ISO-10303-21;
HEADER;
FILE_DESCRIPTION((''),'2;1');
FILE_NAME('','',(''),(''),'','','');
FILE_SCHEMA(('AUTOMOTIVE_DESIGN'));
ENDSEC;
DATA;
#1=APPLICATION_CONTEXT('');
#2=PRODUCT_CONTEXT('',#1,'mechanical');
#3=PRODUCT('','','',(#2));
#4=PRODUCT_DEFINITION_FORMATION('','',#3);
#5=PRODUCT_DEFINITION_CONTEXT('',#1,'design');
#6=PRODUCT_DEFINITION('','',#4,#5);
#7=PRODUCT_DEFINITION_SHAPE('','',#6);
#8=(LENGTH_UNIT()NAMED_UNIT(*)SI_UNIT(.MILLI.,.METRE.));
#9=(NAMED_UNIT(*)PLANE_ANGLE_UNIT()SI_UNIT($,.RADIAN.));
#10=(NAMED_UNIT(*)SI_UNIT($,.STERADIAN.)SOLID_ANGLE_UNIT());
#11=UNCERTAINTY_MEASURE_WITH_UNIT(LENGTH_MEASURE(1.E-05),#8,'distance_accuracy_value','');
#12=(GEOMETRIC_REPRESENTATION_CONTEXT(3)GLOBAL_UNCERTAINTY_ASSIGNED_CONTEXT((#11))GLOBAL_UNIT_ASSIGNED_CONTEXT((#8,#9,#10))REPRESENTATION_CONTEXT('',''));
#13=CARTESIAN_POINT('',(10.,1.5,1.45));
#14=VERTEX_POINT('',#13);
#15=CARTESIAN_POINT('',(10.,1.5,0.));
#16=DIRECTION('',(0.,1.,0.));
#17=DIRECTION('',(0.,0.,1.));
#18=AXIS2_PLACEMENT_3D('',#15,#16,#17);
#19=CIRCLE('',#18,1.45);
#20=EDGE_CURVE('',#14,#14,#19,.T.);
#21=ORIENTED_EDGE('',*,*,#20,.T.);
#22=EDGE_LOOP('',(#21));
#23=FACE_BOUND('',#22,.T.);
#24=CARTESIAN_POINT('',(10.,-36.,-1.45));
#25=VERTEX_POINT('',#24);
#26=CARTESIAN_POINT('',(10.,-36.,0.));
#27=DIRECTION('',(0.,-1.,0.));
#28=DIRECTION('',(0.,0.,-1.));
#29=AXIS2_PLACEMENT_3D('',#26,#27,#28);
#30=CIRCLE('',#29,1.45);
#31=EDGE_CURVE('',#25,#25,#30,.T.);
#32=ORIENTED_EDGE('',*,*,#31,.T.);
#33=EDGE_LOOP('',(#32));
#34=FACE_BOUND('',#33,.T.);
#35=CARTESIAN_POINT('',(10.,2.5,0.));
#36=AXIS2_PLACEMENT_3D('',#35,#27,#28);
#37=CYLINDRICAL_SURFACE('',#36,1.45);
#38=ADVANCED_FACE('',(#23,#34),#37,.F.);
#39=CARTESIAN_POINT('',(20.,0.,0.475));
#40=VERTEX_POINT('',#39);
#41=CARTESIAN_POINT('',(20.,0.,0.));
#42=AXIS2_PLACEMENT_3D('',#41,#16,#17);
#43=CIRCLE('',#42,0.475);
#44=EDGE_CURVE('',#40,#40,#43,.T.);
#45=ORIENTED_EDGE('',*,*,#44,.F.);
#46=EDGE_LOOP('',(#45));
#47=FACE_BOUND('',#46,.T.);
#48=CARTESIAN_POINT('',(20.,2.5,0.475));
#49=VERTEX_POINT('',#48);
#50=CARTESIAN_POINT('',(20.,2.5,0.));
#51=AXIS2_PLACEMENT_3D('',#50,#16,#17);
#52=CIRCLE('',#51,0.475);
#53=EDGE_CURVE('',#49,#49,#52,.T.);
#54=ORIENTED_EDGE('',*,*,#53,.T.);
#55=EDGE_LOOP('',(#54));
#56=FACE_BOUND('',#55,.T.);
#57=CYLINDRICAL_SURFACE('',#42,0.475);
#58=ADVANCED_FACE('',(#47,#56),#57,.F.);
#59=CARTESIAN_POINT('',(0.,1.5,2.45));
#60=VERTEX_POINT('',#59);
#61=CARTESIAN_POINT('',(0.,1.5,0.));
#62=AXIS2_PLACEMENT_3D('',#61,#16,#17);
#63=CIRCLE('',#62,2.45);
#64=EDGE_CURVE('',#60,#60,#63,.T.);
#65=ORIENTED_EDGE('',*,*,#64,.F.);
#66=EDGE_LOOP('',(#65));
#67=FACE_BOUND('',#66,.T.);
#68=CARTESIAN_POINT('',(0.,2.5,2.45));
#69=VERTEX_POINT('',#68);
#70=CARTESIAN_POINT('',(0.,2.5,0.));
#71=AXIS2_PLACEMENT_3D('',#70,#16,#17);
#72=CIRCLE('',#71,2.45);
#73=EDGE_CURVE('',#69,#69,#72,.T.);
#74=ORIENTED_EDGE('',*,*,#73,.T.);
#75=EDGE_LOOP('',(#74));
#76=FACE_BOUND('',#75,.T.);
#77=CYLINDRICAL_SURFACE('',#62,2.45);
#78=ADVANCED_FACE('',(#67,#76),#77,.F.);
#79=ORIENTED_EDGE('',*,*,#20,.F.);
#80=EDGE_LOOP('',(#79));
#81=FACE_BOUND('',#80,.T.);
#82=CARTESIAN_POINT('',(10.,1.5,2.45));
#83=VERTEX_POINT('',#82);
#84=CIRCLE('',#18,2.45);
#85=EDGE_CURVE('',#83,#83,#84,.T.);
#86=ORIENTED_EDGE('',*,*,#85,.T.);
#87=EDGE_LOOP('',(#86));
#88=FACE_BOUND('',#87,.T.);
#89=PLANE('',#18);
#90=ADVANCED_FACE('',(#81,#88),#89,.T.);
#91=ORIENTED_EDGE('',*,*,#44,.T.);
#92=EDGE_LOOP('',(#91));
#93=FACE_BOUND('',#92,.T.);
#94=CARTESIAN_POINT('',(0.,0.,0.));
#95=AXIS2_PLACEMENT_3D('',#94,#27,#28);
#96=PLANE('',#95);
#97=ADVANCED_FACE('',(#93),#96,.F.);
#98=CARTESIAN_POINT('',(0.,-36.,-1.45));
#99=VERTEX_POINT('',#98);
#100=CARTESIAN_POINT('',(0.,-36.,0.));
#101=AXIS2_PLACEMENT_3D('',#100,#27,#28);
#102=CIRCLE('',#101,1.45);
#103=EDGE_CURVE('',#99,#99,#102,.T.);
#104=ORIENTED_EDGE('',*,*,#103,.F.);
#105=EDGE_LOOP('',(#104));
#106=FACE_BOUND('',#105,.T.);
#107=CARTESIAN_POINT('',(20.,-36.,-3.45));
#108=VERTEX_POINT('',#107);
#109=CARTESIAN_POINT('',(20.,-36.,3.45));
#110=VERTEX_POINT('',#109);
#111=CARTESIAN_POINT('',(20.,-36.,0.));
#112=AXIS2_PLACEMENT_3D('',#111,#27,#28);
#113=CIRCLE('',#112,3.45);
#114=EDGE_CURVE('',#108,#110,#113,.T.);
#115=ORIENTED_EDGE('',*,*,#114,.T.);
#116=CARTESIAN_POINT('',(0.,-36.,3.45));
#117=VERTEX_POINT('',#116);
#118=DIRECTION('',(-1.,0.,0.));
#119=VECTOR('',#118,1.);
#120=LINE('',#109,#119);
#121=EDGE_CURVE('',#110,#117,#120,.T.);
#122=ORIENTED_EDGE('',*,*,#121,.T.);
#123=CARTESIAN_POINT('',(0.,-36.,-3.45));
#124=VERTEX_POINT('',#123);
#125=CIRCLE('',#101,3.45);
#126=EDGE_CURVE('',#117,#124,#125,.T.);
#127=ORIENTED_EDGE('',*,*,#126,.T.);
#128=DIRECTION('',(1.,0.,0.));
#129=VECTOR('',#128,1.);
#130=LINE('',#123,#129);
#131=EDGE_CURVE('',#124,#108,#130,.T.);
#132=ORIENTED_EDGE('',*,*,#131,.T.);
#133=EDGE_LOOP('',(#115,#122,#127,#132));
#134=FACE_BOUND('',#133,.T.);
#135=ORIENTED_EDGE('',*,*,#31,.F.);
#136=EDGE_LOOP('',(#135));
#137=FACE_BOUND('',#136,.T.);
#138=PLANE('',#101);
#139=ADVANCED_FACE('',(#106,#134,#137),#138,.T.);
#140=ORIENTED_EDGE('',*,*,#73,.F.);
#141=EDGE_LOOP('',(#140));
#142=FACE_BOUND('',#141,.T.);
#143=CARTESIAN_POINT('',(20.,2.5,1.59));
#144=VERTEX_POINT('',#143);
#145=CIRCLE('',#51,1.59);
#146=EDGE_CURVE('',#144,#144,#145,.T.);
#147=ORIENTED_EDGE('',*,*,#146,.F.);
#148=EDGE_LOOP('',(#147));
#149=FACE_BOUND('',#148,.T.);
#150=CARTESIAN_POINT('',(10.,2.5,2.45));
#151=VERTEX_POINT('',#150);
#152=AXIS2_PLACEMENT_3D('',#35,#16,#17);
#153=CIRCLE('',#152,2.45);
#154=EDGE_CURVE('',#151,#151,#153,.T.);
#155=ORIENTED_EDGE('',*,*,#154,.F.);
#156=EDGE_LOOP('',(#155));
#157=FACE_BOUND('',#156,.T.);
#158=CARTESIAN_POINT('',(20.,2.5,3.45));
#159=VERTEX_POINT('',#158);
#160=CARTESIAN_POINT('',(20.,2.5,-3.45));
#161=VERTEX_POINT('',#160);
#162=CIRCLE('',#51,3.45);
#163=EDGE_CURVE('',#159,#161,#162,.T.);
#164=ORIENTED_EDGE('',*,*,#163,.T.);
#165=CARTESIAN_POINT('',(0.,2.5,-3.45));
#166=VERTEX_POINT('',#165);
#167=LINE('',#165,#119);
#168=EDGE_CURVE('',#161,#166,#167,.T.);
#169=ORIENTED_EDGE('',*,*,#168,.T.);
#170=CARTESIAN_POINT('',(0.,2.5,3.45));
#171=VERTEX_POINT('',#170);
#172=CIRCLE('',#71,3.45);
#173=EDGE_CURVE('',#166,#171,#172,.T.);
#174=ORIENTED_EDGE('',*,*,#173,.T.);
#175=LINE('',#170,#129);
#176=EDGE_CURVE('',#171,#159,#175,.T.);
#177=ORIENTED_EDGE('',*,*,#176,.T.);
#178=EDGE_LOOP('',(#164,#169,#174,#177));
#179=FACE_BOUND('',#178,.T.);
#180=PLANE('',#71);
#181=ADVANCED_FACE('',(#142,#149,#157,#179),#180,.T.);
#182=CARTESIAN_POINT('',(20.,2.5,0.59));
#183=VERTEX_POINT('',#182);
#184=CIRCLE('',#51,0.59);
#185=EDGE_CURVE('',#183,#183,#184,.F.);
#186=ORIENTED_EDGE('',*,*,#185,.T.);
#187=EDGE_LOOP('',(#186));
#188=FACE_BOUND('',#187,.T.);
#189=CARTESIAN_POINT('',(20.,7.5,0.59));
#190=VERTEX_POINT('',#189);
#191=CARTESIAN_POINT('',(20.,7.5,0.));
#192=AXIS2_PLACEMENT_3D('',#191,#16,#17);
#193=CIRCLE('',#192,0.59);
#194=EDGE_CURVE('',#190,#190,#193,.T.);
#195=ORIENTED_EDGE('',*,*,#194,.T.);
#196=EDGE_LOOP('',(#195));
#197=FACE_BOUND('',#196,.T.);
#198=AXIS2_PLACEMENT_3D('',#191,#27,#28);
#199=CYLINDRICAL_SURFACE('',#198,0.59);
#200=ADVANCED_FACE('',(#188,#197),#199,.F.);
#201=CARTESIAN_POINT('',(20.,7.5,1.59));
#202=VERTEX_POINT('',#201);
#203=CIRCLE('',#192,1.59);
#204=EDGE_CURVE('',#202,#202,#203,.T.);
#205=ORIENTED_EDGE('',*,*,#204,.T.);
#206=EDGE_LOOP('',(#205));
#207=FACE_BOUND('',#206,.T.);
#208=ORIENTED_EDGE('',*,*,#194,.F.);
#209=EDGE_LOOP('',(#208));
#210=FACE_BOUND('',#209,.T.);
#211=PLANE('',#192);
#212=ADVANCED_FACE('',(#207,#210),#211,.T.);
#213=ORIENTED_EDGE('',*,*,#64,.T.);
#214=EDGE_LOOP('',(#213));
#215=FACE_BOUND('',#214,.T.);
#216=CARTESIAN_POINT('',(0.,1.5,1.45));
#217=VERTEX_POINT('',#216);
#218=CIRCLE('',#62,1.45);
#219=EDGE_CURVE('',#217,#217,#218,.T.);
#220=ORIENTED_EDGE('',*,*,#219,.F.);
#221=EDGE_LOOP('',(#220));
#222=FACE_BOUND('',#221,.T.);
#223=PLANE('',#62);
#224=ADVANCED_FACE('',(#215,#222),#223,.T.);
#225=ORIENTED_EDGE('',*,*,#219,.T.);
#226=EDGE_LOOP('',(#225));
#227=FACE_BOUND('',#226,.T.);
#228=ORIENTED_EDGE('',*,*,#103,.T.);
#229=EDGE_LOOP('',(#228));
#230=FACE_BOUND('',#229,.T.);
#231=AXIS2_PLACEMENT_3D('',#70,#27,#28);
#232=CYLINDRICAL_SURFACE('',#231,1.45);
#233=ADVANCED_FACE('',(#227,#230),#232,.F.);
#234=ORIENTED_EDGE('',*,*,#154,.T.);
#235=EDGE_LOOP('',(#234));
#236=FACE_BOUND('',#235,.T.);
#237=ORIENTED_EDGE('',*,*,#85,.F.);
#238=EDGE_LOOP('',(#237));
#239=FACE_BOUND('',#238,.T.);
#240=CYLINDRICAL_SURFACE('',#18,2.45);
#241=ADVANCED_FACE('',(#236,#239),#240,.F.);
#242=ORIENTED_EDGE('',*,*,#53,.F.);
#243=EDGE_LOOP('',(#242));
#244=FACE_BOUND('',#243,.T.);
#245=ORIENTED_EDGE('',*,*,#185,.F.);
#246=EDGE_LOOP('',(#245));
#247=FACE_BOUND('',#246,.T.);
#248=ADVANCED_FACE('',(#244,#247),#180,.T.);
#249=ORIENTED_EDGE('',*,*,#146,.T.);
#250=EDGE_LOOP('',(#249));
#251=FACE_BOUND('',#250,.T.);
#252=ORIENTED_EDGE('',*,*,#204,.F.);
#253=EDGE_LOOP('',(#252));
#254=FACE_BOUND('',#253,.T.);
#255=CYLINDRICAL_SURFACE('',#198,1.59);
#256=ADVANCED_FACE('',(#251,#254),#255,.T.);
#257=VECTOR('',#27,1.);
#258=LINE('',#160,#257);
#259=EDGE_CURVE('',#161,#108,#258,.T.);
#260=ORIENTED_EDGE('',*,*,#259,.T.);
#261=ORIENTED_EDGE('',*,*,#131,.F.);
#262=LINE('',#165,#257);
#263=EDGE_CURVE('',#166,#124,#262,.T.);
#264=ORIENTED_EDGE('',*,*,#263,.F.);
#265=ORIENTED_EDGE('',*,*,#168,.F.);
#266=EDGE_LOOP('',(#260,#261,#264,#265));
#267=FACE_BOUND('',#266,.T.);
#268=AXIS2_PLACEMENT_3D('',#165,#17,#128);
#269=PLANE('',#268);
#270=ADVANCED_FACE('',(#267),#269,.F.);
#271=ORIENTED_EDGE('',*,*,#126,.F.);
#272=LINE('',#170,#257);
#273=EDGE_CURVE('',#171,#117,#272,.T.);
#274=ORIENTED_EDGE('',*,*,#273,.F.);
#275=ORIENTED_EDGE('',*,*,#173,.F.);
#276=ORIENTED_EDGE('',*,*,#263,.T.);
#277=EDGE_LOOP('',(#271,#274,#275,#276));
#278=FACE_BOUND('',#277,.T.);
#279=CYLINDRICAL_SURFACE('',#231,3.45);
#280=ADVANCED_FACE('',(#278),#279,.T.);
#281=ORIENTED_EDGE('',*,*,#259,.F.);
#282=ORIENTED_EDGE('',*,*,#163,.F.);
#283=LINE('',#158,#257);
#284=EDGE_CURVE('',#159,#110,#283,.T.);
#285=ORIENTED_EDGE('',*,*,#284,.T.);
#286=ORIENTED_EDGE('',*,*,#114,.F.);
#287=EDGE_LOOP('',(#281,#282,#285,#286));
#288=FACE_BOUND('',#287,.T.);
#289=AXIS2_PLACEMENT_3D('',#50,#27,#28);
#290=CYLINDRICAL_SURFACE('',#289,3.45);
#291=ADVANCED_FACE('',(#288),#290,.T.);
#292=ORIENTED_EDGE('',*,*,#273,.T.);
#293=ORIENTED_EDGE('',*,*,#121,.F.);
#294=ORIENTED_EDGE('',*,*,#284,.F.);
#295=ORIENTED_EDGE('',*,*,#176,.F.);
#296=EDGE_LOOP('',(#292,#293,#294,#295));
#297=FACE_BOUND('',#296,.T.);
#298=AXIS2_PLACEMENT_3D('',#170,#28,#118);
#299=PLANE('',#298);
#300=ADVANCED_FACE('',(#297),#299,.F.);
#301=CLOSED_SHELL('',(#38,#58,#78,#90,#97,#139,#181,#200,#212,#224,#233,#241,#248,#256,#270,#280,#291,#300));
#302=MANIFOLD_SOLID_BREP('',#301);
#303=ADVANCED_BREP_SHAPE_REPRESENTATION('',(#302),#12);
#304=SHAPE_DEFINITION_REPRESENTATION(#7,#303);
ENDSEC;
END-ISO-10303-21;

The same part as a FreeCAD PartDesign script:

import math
import FreeCAD as App
import Part
import Sketcher

V = App.Vector
Q = App.Units.Quantity

doc = App.newDocument("Part")
body = doc.addObject("PartDesign::Body", "Body")

# Sketch on XZ plane
sketch1 = body.newObject("Sketcher::SketchObject", "Sketch")
sketch1.AttachmentSupport = (doc.getObject("XZ_Plane"), [""])
sketch1.MapMode = "FlatFace"
sketch1.addGeometry(Part.LineSegment(V(20, -3.5, 0), V(0, -3.5, 0)), False)
sketch1.addGeometry(Part.ArcOfCircle(Part.Circle(V(0, 0, 0), V(0, 0, 1), 3.5), math.radians(90), math.radians(270)), False)
sketch1.addGeometry(Part.LineSegment(V(0, 3.5, 0), V(20, 3.5, 0)), False)
sketch1.addGeometry(Part.ArcOfCircle(Part.Circle(V(20, 0, 0), V(0, 0, 1), 3.5), math.radians(-90), math.radians(90)), False)
sketch1.addGeometry(Part.Circle(V(10, 0, 0), V(0, 0, 1), 1.4), False)
sketch1.addGeometry(Part.Circle(V(0, 0, 0), V(0, 0, 1), 1.4), False)
sketch1.addConstraint(Sketcher.Constraint("Tangent", 0, 2, 1, 2))
sketch1.addConstraint(Sketcher.Constraint("Tangent", 1, 1, 2, 1))
sketch1.addConstraint(Sketcher.Constraint("Tangent", 2, 2, 3, 2))
sketch1.addConstraint(Sketcher.Constraint("Tangent", 3, 1, 0, 1))
sketch1.addConstraint(Sketcher.Constraint("Horizontal", 0))
sketch1.addConstraint(Sketcher.Constraint("Horizontal", 2))
sketch1.addConstraint(Sketcher.Constraint("Coincident", 1, 3, -1, 1))
sketch1.addConstraint(Sketcher.Constraint("Coincident", 5, 3, -1, 1))
sketch1.addConstraint(Sketcher.Constraint("Equal", 4, 5))
sketch1.addConstraint(Sketcher.Constraint("PointOnObject", 4, 3, -1))
sketch1.addConstraint(Sketcher.Constraint("Diameter", 4, Q("2.9 mm")))
sketch1.addConstraint(Sketcher.Constraint("DistanceX", 0, 2, 0, 1, Q("20 mm")))
sketch1.addConstraint(Sketcher.Constraint("Radius", 1, Q("3.45 mm")))
sketch1.addConstraint(Sketcher.Constraint("DistanceX", -1, 1, 4, 3, Q("10 mm")))
pad1 = body.newObject("PartDesign::Pad", "Pad")
pad1.Profile = sketch1
pad1.Length = 2.5
pad1.Reversed = True

# Sketch on XZ plane
sketch2 = body.newObject("Sketcher::SketchObject", "Sketch001")
sketch2.AttachmentSupport = (doc.getObject("XZ_Plane"), [""])
sketch2.MapMode = "FlatFace"
sketch2.AttachmentOffset = App.Placement(V(0, 0, -2.5), App.Rotation())
sketch2.addGeometry(Part.Circle(V(0, 0, 0), V(0, 0, 1), 2.5), False)
sketch2.addGeometry(Part.Circle(V(10, 0, 0), V(0, 0, 1), 2.5), False)
sketch2.addConstraint(Sketcher.Constraint("Coincident", 0, 3, -1, 1))
sketch2.addConstraint(Sketcher.Constraint("Equal", 0, 1))
sketch2.addConstraint(Sketcher.Constraint("PointOnObject", 1, 3, -1))
sketch2.addConstraint(Sketcher.Constraint("Diameter", 0, Q("4.9 mm")))
sketch2.addConstraint(Sketcher.Constraint("DistanceX", -1, 1, 1, 3, Q("10 mm")))
pocket1 = body.newObject("PartDesign::Pocket", "Pocket")
pocket1.Profile = sketch2
pocket1.Length = 1
pocket1.Reversed = True

# Sketch on XZ plane
sketch3 = body.newObject("Sketcher::SketchObject", "Sketch002")
sketch3.AttachmentSupport = (doc.getObject("XZ_Plane"), [""])
sketch3.MapMode = "FlatFace"
sketch3.AttachmentOffset = App.Placement(V(0, 0, -2.5), App.Rotation())
sketch3.addGeometry(Part.Circle(V(20, 0, 0), V(0, 0, 1), 1.6), False)
sketch3.addGeometry(Part.Circle(V(20, 0, 0), V(0, 0, 1), 0.6), False)
sketch3.addConstraint(Sketcher.Constraint("Coincident", 1, 3, 0, 3))
sketch3.addConstraint(Sketcher.Constraint("PointOnObject", 0, 3, -1))
sketch3.addConstraint(Sketcher.Constraint("Diameter", 0, Q("3.18 mm")))
sketch3.addConstraint(Sketcher.Constraint("Diameter", 1, Q("1.18 mm")))
sketch3.addConstraint(Sketcher.Constraint("DistanceX", -1, 1, 0, 3, Q("20 mm")))
pad2 = body.newObject("PartDesign::Pad", "Pad001")
pad2.Profile = sketch3
pad2.Length = 5
pad2.Reversed = True

# Sketch on XZ plane
sketch4 = body.newObject("Sketcher::SketchObject", "Sketch003")
sketch4.AttachmentSupport = (doc.getObject("XZ_Plane"), [""])
sketch4.MapMode = "FlatFace"
sketch4.AttachmentOffset = App.Placement(V(0, 0, -2.5), App.Rotation())
sketch4.addGeometry(Part.Circle(V(20, 0, 0), V(0, 0, 1), 0.47), False)
sketch4.addConstraint(Sketcher.Constraint("PointOnObject", 0, 3, -1))
sketch4.addConstraint(Sketcher.Constraint("Diameter", 0, Q("0.95 mm")))
sketch4.addConstraint(Sketcher.Constraint("DistanceX", -1, 1, 0, 3, Q("20 mm")))
pocket2 = body.newObject("PartDesign::Pocket", "Pocket001")
pocket2.Profile = sketch4
pocket2.Type = "ThroughAll"
pocket2.Reversed = True

# Sketch on XZ plane
sketch5 = body.newObject("Sketcher::SketchObject", "Sketch004")
sketch5.AttachmentSupport = (doc.getObject("XZ_Plane"), [""])
sketch5.MapMode = "FlatFace"
sketch5.AttachmentOffset = App.Placement(V(0, 0, 36), App.Rotation())
sketch5.addGeometry(Part.LineSegment(V(0, -3.5, 0), V(20, -3.5, 0)), False)
sketch5.addGeometry(Part.ArcOfCircle(Part.Circle(V(20, 0, 0), V(0, 0, 1), 3.5), math.radians(-90), math.radians(90)), False)
sketch5.addGeometry(Part.LineSegment(V(20, 3.5, 0), V(0, 3.5, 0)), False)
sketch5.addGeometry(Part.ArcOfCircle(Part.Circle(V(0, 0, 0), V(0, 0, 1), 3.5), math.radians(90), math.radians(270)), False)
sketch5.addGeometry(Part.Circle(V(0, 0, 0), V(0, 0, 1), 1.4), False)
sketch5.addGeometry(Part.Circle(V(10, 0, 0), V(0, 0, 1), 1.4), False)
sketch5.addConstraint(Sketcher.Constraint("Tangent", 0, 2, 1, 1))
sketch5.addConstraint(Sketcher.Constraint("Tangent", 1, 2, 2, 1))
sketch5.addConstraint(Sketcher.Constraint("Tangent", 2, 2, 3, 1))
sketch5.addConstraint(Sketcher.Constraint("Tangent", 3, 2, 0, 1))
sketch5.addConstraint(Sketcher.Constraint("Horizontal", 0))
sketch5.addConstraint(Sketcher.Constraint("Horizontal", 2))
sketch5.addConstraint(Sketcher.Constraint("Coincident", 3, 3, -1, 1))
sketch5.addConstraint(Sketcher.Constraint("Coincident", 4, 3, -1, 1))
sketch5.addConstraint(Sketcher.Constraint("Equal", 4, 5))
sketch5.addConstraint(Sketcher.Constraint("PointOnObject", 5, 3, -1))
sketch5.addConstraint(Sketcher.Constraint("Diameter", 4, Q("2.9 mm")))
sketch5.addConstraint(Sketcher.Constraint("DistanceX", 0, 1, 0, 2, Q("20 mm")))
sketch5.addConstraint(Sketcher.Constraint("Radius", 1, Q("3.45 mm")))
sketch5.addConstraint(Sketcher.Constraint("DistanceX", -1, 1, 5, 3, Q("10 mm")))
pad3 = body.newObject("PartDesign::Pad", "Pad002")
pad3.Profile = sketch5
pad3.Length = 36
pad3.Reversed = True

doc.recompute()
